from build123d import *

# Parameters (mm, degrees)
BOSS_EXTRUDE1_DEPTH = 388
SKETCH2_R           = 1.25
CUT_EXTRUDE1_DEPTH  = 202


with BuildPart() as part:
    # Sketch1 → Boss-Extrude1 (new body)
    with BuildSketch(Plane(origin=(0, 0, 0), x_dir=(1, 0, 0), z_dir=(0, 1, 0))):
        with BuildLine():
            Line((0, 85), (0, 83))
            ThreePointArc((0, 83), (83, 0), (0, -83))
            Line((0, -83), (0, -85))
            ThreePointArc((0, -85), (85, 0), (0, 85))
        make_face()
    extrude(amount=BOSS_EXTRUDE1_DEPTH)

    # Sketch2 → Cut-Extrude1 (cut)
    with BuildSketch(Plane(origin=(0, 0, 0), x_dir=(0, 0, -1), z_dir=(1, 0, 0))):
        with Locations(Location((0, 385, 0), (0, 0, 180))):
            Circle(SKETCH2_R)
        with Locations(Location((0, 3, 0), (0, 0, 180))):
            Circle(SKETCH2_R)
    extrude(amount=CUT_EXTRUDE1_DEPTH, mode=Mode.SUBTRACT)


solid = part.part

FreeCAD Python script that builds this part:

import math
import FreeCAD as App
import Part
import Sketcher
Q = App.Units.Quantity

doc = App.newDocument("Part")
body = doc.addObject("PartDesign::Body", "Body")

# Sketch on XZ plane
sketch1 = body.newObject("Sketcher::SketchObject", "Sketch")
sketch1.AttachmentSupport = (doc.getObject("XZ_Plane"), [""])
sketch1.MapMode = "FlatFace"
sketch1.addGeometry([
    Part.LineSegment(App.Vector(0, -85, 0), App.Vector(0, -83, 0)),
    Part.ArcOfCircle(Part.Circle(App.Vector(0, 0, 0), App.Vector(0, 0, 1), 83), math.radians(-90), math.radians(90)),
    Part.LineSegment(App.Vector(0, 83, 0), App.Vector(0, 85, 0)),
    Part.ArcOfCircle(Part.Circle(App.Vector(0, 0, 0), App.Vector(0, 0, 1), 85), math.radians(-90), math.radians(90)),
], False)
sketch1.addConstraint([
    Sketcher.Constraint("Coincident", 0, 2, 1, 1),
    Sketcher.Constraint("Coincident", 1, 2, 2, 1),
    Sketcher.Constraint("Coincident", 2, 2, 3, 2),
    Sketcher.Constraint("Coincident", 3, 1, 0, 1),
    Sketcher.Constraint("Vertical", 0),
    Sketcher.Constraint("Vertical", 2),
    Sketcher.Constraint("Coincident", 1, 3, -1, 1),
    Sketcher.Constraint("Coincident", 3, 3, -1, 1),
    Sketcher.Constraint("PointOnObject", 0, 2, -2),
    Sketcher.Constraint("PointOnObject", 1, 2, -2),
    Sketcher.Constraint("Radius", 1, Q("83 mm")),
    Sketcher.Constraint("Radius", 3, Q("85 mm")),
])
pad1 = body.newObject("PartDesign::Pad", "Pad")
pad1.Profile = sketch1
pad1.Length = 388
pad1.Reversed = True

# Sketch on YZ plane
sketch2 = body.newObject("Sketcher::SketchObject", "Sketch001")
sketch2.AttachmentSupport = (doc.getObject("YZ_Plane"), [""])
sketch2.MapMode = "FlatFace"
sketch2.addGeometry([
    Part.Circle(App.Vector(385, 0, 0), App.Vector(0, 0, 1), 1.25),
    Part.Circle(App.Vector(3, 0, 0), App.Vector(0, 0, 1), 1.25),
], False)
sketch2.addConstraint([
    Sketcher.Constraint("Equal", 0, 1),
    Sketcher.Constraint("PointOnObject", 0, 3, -1),
    Sketcher.Constraint("PointOnObject", 1, 3, -1),
    Sketcher.Constraint("Diameter", 0, Q("2.5 mm")),
    Sketcher.Constraint("DistanceX", -1, 1, 0, 3, Q("385 mm")),
    Sketcher.Constraint("DistanceX", -1, 1, 1, 3, Q("3 mm")),
])
pocket1 = body.newObject("PartDesign::Pocket", "Pocket")
pocket1.Profile = sketch2
pocket1.Length = 202
pocket1.Reversed = True

doc.recompute()
